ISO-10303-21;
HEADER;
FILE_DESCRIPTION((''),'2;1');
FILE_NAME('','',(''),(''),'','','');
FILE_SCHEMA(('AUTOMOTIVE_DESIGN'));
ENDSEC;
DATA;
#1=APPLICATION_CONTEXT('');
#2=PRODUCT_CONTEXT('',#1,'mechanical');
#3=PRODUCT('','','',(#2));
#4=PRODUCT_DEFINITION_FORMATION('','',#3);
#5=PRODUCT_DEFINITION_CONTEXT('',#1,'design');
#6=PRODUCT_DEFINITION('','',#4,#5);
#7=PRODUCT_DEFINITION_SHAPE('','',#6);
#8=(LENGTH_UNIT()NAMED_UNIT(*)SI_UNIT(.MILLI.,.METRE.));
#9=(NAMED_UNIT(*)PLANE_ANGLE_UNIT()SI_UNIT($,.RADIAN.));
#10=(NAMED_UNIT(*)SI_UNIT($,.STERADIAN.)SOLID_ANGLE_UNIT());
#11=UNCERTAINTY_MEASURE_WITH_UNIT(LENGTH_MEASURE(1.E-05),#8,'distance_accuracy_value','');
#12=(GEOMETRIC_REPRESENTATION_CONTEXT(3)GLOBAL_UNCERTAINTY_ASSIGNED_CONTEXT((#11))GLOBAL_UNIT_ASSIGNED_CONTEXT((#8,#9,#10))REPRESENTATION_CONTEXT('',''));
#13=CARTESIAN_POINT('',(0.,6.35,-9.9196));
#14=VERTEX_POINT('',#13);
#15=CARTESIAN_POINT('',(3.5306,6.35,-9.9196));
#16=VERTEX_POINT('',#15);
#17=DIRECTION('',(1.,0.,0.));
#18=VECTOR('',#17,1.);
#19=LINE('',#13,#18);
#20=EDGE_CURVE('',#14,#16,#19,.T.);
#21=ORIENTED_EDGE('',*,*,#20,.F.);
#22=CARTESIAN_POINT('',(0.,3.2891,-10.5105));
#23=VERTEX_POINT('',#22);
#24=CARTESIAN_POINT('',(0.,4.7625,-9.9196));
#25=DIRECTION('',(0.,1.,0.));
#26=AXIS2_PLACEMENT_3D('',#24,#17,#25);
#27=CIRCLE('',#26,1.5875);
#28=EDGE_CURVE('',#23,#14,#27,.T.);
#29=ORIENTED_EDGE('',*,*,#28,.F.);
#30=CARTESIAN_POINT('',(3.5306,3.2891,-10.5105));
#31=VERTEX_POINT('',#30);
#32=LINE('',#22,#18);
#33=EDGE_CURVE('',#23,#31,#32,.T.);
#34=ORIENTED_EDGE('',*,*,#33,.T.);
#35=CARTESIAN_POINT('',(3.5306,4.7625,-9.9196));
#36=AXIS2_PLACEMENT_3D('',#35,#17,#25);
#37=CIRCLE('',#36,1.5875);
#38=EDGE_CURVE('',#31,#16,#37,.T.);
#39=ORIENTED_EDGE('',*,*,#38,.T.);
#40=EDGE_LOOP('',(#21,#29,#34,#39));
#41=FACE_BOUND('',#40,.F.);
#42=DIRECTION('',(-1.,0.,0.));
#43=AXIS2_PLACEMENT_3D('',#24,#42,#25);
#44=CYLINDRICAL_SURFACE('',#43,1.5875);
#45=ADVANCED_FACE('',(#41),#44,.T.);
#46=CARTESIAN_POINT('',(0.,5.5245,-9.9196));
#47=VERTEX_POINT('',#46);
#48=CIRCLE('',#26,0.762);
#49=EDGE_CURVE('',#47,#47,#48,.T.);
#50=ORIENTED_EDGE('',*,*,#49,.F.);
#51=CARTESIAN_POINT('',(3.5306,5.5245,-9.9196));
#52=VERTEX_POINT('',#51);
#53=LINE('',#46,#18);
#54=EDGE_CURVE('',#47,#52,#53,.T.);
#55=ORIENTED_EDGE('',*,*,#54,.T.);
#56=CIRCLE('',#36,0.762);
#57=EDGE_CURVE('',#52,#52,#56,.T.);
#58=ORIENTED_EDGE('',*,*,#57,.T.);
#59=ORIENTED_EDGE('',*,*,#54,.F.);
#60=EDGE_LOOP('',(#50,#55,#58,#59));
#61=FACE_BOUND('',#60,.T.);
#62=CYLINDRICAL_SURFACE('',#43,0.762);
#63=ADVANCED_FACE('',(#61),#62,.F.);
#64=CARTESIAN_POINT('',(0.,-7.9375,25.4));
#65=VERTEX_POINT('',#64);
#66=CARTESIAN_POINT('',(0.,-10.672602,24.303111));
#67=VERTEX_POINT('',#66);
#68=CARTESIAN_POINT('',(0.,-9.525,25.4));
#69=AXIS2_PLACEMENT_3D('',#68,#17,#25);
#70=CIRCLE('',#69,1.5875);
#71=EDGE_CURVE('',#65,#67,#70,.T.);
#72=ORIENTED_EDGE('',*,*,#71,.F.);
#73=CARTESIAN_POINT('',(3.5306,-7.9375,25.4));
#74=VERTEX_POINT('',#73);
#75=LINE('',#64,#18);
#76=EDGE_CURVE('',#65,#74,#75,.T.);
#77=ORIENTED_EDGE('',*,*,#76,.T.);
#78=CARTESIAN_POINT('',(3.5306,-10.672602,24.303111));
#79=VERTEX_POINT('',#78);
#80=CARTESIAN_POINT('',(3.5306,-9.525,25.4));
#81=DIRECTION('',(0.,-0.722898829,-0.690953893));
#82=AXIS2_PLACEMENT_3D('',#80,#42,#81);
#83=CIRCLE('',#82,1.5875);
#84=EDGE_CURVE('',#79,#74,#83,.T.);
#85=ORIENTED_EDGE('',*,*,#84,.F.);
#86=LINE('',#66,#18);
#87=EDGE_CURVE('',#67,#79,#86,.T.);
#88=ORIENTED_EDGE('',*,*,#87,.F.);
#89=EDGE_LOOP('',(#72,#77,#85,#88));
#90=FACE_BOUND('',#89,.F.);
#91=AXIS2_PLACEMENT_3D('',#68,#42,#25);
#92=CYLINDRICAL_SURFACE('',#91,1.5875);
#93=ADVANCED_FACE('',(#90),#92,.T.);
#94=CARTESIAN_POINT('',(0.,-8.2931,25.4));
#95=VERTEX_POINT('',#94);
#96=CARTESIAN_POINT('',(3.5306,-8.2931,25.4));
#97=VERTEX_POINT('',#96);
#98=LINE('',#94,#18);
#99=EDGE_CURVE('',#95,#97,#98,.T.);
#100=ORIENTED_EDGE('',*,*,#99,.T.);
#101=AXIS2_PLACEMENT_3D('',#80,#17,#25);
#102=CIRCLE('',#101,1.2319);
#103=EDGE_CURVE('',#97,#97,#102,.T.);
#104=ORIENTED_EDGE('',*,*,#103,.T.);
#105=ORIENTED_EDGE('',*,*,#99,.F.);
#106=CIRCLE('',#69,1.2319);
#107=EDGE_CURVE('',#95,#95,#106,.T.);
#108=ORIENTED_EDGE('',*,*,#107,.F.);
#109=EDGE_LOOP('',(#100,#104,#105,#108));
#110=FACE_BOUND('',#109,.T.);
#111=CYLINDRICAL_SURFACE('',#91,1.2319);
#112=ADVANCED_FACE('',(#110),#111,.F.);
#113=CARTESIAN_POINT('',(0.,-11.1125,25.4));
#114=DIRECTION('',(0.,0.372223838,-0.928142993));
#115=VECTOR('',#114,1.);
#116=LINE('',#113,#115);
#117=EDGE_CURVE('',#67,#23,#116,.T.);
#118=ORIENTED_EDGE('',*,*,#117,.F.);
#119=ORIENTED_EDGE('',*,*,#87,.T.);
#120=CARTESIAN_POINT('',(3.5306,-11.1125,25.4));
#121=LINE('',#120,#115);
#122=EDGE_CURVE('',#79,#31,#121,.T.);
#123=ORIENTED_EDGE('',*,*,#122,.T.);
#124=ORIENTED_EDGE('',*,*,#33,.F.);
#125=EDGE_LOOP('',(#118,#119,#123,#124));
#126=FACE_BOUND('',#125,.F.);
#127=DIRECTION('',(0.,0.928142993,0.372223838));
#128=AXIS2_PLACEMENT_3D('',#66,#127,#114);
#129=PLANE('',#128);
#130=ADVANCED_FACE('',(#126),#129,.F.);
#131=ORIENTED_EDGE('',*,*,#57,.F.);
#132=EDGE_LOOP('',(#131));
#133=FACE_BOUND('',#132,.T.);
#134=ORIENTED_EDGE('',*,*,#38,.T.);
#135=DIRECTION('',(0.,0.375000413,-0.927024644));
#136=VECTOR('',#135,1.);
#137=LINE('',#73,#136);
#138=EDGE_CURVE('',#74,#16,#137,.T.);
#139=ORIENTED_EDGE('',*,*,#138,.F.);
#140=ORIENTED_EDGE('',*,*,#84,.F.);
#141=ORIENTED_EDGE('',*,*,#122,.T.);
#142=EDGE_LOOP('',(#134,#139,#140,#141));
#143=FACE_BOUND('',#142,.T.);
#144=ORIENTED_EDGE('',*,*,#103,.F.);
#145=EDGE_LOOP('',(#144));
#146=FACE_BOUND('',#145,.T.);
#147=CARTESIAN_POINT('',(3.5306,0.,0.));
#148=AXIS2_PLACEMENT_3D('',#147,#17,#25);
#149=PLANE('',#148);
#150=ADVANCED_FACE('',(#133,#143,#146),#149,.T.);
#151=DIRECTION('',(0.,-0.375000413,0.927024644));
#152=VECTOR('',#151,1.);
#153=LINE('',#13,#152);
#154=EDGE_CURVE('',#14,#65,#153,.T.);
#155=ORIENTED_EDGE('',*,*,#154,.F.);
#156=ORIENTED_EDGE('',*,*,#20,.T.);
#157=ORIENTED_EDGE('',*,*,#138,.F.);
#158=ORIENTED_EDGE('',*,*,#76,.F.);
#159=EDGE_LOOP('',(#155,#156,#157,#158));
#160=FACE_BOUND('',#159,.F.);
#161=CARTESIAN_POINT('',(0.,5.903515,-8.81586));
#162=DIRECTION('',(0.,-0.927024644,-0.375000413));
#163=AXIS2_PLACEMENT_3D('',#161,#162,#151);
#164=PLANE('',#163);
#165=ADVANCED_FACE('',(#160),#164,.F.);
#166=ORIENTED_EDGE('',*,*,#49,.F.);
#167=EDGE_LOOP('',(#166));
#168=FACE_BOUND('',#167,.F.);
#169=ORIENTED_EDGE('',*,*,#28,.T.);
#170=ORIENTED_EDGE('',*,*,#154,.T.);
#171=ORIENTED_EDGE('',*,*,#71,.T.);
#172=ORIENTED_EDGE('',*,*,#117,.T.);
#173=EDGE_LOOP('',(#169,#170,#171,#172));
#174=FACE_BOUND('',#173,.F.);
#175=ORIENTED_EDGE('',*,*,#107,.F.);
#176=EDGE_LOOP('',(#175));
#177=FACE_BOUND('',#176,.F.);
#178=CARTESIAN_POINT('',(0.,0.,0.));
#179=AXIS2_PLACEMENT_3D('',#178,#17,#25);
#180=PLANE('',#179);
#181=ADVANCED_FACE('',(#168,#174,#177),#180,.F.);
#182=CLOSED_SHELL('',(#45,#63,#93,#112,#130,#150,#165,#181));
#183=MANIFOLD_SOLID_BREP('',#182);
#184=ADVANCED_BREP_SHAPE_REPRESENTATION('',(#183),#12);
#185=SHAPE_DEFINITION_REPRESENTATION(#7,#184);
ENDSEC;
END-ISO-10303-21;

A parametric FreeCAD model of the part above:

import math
import FreeCAD as App
import Part
import Sketcher
Q = App.Units.Quantity

doc = App.newDocument("Part")
body = doc.addObject("PartDesign::Body", "Body")

# Sketch on YZ plane
sketch1 = body.newObject("Sketcher::SketchObject", "Sketch")
sketch1.AttachmentSupport = (doc.getObject("YZ_Plane"), [""])
sketch1.MapMode = "FlatFace"
sketch1.addGeometry([
    Part.ArcOfCircle(Part.Circle(App.Vector(-9.525, 25.4, 0), App.Vector(0, 0, 1), 1.5875), math.radians(0), math.radians(223.705665)),  # 0
    Part.LineSegment(App.Vector(-10.672602, 24.303111, 0), App.Vector(3.2891, -10.5105, 0)),  # 1
    Part.ArcOfCircle(Part.Circle(App.Vector(4.7625, -9.9196, 0), App.Vector(0, 0, 1), 1.5875), math.radians(-158.146984), math.radians(0)),  # 2
    Part.LineSegment(App.Vector(6.35, -9.9196, 0), App.Vector(-7.9375, 25.4, 0)),  # 3
    Part.Circle(App.Vector(-9.525, 25.4, 0), App.Vector(0, 0, 1), 1.2319),  # 4
    Part.Circle(App.Vector(4.7625, -9.9196, 0), App.Vector(0, 0, 1), 0.762),  # 5
], False)
sketch1.addConstraint([
    Sketcher.Constraint("Coincident", 0, 2, 1, 1),
    Sketcher.Constraint("Coincident", 1, 2, 2, 1),
    Sketcher.Constraint("Coincident", 2, 2, 3, 1),
    Sketcher.Constraint("Coincident", 3, 2, 0, 1),
    Sketcher.Constraint("Coincident", 4, 3, 0, 3),
    Sketcher.Constraint("Coincident", 5, 3, 2, 3),
    Sketcher.Constraint("Diameter", 5, Q("0.06 in")),
    Sketcher.Constraint("Diameter", 4, Q("0.097 in")),
    Sketcher.Constraint("Radius", 0, Q("0.0625 in")),
    Sketcher.Constraint("Radius", 2, Q("0.0625 in")),
    Sketcher.Constraint("DistanceY", -1, 1, 0, 3, Q("1 in")),
    Sketcher.Constraint("DistanceY", -1, 1, 3, 2, Q("1 in")),
    Sketcher.Constraint("Distance", 3, Q("1.5 in")),
    Sketcher.Constraint("DistanceX", 3, 2, 2, 3, Q("0.5 in")),
    Sketcher.Constraint("DistanceX", -1, 1, 2, 2, Q("0.25 in")),
    Sketcher.Constraint("DistanceX", 1, 2, 2, 3, Q("0.058 in")),
    Sketcher.Constraint("DistanceY", 1, 2, -1, 1, Q("0.4138 in")),
    Sketcher.Constraint("Distance", 1, 37.509),
])
pad1 = body.newObject("PartDesign::Pad", "Pad")
pad1.Profile = sketch1
pad1.Length = Q("0.139 in")

doc.recompute()
